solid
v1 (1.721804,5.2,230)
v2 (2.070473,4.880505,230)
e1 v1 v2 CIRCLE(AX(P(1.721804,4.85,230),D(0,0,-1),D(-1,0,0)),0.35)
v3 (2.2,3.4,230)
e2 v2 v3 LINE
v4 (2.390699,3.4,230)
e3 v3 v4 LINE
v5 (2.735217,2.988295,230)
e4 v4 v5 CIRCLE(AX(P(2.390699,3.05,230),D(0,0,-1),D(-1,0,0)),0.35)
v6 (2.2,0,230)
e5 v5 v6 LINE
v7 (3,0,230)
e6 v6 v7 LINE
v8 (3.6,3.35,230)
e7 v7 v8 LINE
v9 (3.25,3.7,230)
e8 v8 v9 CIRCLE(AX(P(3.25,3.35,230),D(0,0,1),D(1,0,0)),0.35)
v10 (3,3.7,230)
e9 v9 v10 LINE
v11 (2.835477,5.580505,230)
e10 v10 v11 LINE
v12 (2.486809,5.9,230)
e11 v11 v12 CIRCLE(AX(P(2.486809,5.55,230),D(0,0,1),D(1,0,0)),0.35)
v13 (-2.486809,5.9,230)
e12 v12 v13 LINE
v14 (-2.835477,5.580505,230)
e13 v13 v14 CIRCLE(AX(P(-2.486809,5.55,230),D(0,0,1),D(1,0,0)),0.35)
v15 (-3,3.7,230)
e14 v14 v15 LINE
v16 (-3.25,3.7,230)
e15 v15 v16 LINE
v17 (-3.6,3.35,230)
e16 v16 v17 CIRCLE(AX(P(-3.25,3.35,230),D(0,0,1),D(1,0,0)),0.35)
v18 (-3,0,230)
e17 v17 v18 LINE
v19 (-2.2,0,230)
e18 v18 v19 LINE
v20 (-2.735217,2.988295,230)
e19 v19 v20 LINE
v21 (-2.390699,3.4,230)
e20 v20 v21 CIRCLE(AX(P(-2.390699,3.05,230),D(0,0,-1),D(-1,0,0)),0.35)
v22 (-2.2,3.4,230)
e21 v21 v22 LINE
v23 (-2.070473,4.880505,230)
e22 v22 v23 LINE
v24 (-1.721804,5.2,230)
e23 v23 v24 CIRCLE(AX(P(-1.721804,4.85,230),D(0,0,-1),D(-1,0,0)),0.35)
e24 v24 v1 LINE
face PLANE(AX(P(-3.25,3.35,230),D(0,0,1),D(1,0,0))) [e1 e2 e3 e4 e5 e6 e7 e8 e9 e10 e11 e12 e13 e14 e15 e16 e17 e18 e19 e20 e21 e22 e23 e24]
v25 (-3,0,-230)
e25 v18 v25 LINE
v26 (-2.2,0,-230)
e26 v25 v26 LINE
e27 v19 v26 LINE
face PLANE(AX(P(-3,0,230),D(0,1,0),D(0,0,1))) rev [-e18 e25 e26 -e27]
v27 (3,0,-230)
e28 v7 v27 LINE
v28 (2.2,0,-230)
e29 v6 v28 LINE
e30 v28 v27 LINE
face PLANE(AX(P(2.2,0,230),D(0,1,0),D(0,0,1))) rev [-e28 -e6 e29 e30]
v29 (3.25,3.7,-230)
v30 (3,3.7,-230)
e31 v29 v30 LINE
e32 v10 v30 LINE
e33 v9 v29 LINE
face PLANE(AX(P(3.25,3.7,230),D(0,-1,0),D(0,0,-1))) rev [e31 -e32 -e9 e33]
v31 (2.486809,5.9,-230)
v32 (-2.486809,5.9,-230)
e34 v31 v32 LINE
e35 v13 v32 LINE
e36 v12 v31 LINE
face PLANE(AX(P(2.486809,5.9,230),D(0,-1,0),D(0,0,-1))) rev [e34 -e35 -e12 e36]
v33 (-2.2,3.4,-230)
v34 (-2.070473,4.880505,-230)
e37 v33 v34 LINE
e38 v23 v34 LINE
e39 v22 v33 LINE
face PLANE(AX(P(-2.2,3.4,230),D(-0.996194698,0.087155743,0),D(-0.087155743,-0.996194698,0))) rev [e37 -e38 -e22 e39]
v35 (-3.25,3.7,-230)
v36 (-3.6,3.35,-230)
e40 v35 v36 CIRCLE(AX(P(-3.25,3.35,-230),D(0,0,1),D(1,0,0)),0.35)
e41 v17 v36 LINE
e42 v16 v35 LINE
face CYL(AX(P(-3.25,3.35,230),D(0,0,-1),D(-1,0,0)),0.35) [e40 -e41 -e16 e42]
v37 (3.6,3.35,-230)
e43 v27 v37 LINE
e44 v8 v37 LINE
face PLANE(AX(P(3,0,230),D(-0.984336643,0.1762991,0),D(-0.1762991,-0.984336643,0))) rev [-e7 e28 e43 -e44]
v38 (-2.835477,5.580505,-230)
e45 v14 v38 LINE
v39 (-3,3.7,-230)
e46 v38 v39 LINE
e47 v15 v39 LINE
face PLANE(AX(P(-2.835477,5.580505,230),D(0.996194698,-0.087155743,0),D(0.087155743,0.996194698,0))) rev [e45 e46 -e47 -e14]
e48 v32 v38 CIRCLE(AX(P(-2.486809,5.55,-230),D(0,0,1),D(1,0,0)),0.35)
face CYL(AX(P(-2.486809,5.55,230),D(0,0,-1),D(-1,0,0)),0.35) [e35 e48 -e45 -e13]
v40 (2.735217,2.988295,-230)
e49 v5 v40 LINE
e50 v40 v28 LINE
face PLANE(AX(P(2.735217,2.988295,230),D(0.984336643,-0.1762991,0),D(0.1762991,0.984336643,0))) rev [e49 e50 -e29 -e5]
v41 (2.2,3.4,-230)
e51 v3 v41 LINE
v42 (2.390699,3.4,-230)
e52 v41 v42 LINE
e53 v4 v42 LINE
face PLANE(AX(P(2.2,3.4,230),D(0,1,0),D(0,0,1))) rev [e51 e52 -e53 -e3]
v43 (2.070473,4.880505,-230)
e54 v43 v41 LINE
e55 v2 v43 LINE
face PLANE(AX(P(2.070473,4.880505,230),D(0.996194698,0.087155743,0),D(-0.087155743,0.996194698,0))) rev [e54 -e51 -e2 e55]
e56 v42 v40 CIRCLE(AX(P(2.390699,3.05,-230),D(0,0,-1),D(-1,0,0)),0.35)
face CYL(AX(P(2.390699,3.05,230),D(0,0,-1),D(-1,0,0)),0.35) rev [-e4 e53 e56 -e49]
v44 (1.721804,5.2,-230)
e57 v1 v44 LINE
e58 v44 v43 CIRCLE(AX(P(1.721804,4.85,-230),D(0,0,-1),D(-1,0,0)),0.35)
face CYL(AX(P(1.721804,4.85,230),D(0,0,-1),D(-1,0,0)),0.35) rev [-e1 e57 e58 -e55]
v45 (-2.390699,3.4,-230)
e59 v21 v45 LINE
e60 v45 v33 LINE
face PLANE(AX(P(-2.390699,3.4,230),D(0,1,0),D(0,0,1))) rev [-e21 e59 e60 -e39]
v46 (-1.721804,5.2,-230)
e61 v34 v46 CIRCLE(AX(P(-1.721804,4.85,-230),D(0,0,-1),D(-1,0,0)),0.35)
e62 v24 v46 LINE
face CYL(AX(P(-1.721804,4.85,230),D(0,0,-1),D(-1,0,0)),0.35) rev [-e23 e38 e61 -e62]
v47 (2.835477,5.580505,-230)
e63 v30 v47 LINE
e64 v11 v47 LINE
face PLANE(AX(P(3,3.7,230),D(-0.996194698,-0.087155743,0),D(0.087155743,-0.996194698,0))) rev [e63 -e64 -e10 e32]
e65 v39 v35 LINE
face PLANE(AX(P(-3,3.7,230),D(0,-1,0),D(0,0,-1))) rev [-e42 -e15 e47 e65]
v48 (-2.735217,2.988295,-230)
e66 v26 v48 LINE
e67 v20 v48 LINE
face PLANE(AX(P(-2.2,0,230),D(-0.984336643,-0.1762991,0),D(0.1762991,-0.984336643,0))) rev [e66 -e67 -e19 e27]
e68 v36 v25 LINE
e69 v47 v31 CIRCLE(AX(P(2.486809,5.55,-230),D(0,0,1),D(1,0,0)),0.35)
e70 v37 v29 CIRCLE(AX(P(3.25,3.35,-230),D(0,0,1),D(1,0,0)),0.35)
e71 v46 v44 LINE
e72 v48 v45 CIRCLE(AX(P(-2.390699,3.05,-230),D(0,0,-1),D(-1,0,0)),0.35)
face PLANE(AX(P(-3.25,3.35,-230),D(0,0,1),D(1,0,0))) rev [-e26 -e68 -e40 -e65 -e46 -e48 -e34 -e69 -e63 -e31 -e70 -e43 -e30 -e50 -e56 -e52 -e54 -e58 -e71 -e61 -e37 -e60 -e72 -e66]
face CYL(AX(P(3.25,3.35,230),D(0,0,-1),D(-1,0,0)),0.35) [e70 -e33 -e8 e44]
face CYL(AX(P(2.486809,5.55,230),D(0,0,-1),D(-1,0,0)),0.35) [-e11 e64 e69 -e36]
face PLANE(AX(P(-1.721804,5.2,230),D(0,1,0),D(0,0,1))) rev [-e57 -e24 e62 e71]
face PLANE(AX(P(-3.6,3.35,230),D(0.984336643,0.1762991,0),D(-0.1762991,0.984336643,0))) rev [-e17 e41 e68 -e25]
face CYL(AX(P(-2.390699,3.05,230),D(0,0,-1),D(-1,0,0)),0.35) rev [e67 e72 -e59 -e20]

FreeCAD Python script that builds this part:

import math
import FreeCAD as App
import Part
import Sketcher
from FreeCAD import Vector
Q = App.Units.Quantity

doc = App.newDocument("Part")
params = doc.addObject("Spreadsheet::Sheet", "Params")
for row, (alias, value) in enumerate([
    ("sketch1_radius", "0.35 mm"),
    ("sketch1_width", "0.8 mm"),
    ("sketch1_width2", "0.25 mm"),
    ("pad1_length", "460 mm"),
], start=1):
    params.set(f"A{row}", alias)
    params.set(f"B{row}", "=" + value)
    params.setAlias(f"B{row}", alias)

body = doc.addObject("PartDesign::Body", "Body")

sketch1 = doc.addObject("Sketcher::SketchObject", "Sketch")
body.addObject(sketch1)
sketch1.AttachmentSupport = (doc.XY_Plane, [""])
sketch1.MapMode = "FlatFace"
sketch1.addGeometry(Part.LineSegment(Vector(-3.6, 3.35, 0), Vector(-3, 0, 0)), False)
sketch1.addGeometry(Part.LineSegment(Vector(-3, 0, 0), Vector(-2.2, 0, 0)), False)
sketch1.addGeometry(Part.LineSegment(Vector(-2.2, 0, 0), Vector(-2.74, 2.99, 0)), False)
sketch1.addGeometry(Part.ArcOfCircle(Part.Circle(Vector(-2.39, 3.05, 0), Vector(0, 0, 1), 0.35), math.radians(90), math.radians(190)), False)
sketch1.addGeometry(Part.LineSegment(Vector(-2.39, 3.4, 0), Vector(-2.2, 3.4, 0)), False)
sketch1.addGeometry(Part.LineSegment(Vector(-2.2, 3.4, 0), Vector(-2.07, 4.88, 0)), False)
sketch1.addGeometry(Part.ArcOfCircle(Part.Circle(Vector(-1.72, 4.85, 0), Vector(0, 0, 1), 0.35), math.radians(90), math.radians(175)), False)
sketch1.addGeometry(Part.LineSegment(Vector(-1.72, 5.2, 0), Vector(1.72, 5.2, 0)), False)
sketch1.addGeometry(Part.ArcOfCircle(Part.Circle(Vector(1.72, 4.85, 0), Vector(0, 0, 1), 0.35), math.radians(5), math.radians(90)), False)
sketch1.addGeometry(Part.LineSegment(Vector(2.07, 4.88, 0), Vector(2.2, 3.4, 0)), False)
sketch1.addGeometry(Part.LineSegment(Vector(2.2, 3.4, 0), Vector(2.39, 3.4, 0)), False)
sketch1.addGeometry(Part.ArcOfCircle(Part.Circle(Vector(2.39, 3.05, 0), Vector(0, 0, 1), 0.35), math.radians(-10), math.radians(90)), False)
sketch1.addGeometry(Part.LineSegment(Vector(2.74, 2.99, 0), Vector(2.2, 0, 0)), False)
sketch1.addGeometry(Part.LineSegment(Vector(2.2, 0, 0), Vector(3, 0, 0)), False)
sketch1.addGeometry(Part.LineSegment(Vector(3, 0, 0), Vector(3.6, 3.35, 0)), False)
sketch1.addGeometry(Part.ArcOfCircle(Part.Circle(Vector(3.25, 3.35, 0), Vector(0, 0, 1), 0.35), math.radians(0), math.radians(90)), False)
sketch1.addGeometry(Part.LineSegment(Vector(3.25, 3.7, 0), Vector(3, 3.7, 0)), False)
sketch1.addGeometry(Part.LineSegment(Vector(3, 3.7, 0), Vector(2.84, 5.58, 0)), False)
sketch1.addGeometry(Part.ArcOfCircle(Part.Circle(Vector(2.49, 5.55, 0), Vector(0, 0, 1), 0.35), math.radians(5), math.radians(90)), False)
sketch1.addGeometry(Part.LineSegment(Vector(2.49, 5.9, 0), Vector(-2.49, 5.9, 0)), False)
sketch1.addGeometry(Part.ArcOfCircle(Part.Circle(Vector(-2.49, 5.55, 0), Vector(0, 0, 1), 0.35), math.radians(90), math.radians(175)), False)
sketch1.addGeometry(Part.LineSegment(Vector(-2.84, 5.58, 0), Vector(-3, 3.7, 0)), False)
sketch1.addGeometry(Part.LineSegment(Vector(-3, 3.7, 0), Vector(-3.25, 3.7, 0)), False)
sketch1.addGeometry(Part.ArcOfCircle(Part.Circle(Vector(-3.25, 3.35, 0), Vector(0, 0, 1), 0.35), math.radians(90), math.radians(180)), False)
sketch1.addConstraint(Sketcher.Constraint("Coincident", 0, 2, 1, 1))
sketch1.addConstraint(Sketcher.Constraint("Coincident", 1, 2, 2, 1))
sketch1.addConstraint(Sketcher.Constraint("Tangent", 2, 2, 3, 2))
sketch1.addConstraint(Sketcher.Constraint("Tangent", 3, 1, 4, 1))
sketch1.addConstraint(Sketcher.Constraint("Coincident", 4, 2, 5, 1))
sketch1.addConstraint(Sketcher.Constraint("Tangent", 5, 2, 6, 2))
sketch1.addConstraint(Sketcher.Constraint("Tangent", 6, 1, 7, 1))
sketch1.addConstraint(Sketcher.Constraint("Tangent", 7, 2, 8, 2))
sketch1.addConstraint(Sketcher.Constraint("Tangent", 8, 1, 9, 1))
sketch1.addConstraint(Sketcher.Constraint("Coincident", 9, 2, 10, 1))
sketch1.addConstraint(Sketcher.Constraint("Tangent", 10, 2, 11, 2))
sketch1.addConstraint(Sketcher.Constraint("Tangent", 11, 1, 12, 1))
sketch1.addConstraint(Sketcher.Constraint("Coincident", 12, 2, 13, 1))
sketch1.addConstraint(Sketcher.Constraint("Coincident", 13, 2, 14, 1))
sketch1.addConstraint(Sketcher.Constraint("Coincident", 14, 2, 15, 1))
sketch1.addConstraint(Sketcher.Constraint("Tangent", 15, 2, 16, 1))
sketch1.addConstraint(Sketcher.Constraint("Coincident", 16, 2, 17, 1))
sketch1.addConstraint(Sketcher.Constraint("Tangent", 17, 2, 18, 1))
sketch1.addConstraint(Sketcher.Constraint("Tangent", 18, 2, 19, 1))
sketch1.addConstraint(Sketcher.Constraint("Tangent", 19, 2, 20, 1))
sketch1.addConstraint(Sketcher.Constraint("Tangent", 20, 2, 21, 1))
sketch1.addConstraint(Sketcher.Constraint("Coincident", 21, 2, 22, 1))
sketch1.addConstraint(Sketcher.Constraint("Tangent", 22, 2, 23, 1))
sketch1.addConstraint(Sketcher.Constraint("Coincident", 23, 2, 0, 1))
sketch1.addConstraint(Sketcher.Constraint("Horizontal", 1))
sketch1.addConstraint(Sketcher.Constraint("Horizontal", 4))
sketch1.addConstraint(Sketcher.Constraint("Horizontal", 7))
sketch1.addConstraint(Sketcher.Constraint("Horizontal", 10))
sketch1.addConstraint(Sketcher.Constraint("Horizontal", 13))
sketch1.addConstraint(Sketcher.Constraint("Horizontal", 16))
sketch1.addConstraint(Sketcher.Constraint("Horizontal", 19))
sketch1.addConstraint(Sketcher.Constraint("Horizontal", 22))
sketch1.addConstraint(Sketcher.Constraint("Equal", 3, 6))
sketch1.addConstraint(Sketcher.Constraint("Equal", 6, 8))
sketch1.addConstraint(Sketcher.Constraint("Equal", 8, 11))
sketch1.addConstraint(Sketcher.Constraint("Equal", 11, 15))
sketch1.addConstraint(Sketcher.Constraint("Equal", 15, 18))
sketch1.addConstraint(Sketcher.Constraint("Equal", 18, 20))
sketch1.addConstraint(Sketcher.Constraint("Equal", 20, 23))
sketch1.addConstraint(Sketcher.Constraint("Symmetric", 1, 2, 12, 2, -1, 1))
sketch1.addConstraint(Sketcher.Constraint("Symmetric", 3, 3, 11, 3, -2))
sketch1.addConstraint(Sketcher.Constraint("Symmetric", 15, 3, 23, 3, -2))
sketch1.addConstraint(Sketcher.Constraint("Symmetric", 5, 2, 8, 1, -2))
sketch1.addConstraint(Sketcher.Constraint("Symmetric", 0, 2, 13, 2, -2))
sketch1.addConstraint(Sketcher.Constraint("Symmetric", 17, 2, 20, 2, -2))
sketch1.addConstraint(Sketcher.Constraint("Parallel", 0, 2))
sketch1.addConstraint(Sketcher.Constraint("Parallel", 12, 14))
sketch1.addConstraint(Sketcher.Constraint("Parallel", 9, 17))
sketch1.addConstraint(Sketcher.Constraint("Horizontal", 23, 3, 14, 2))
sketch1.addConstraint(Sketcher.Constraint("Vertical", 1, 2, 4, 2))
sketch1.addConstraint(Sketcher.Constraint("Vertical", 13, 2, 16, 2))
sketch1.addConstraint(Sketcher.Constraint("Angle", 5, Q("85 deg")))
sketch1.addConstraint(Sketcher.Constraint("Radius", 3, Q("0.35 mm")))
sketch1.addConstraint(Sketcher.Constraint("DistanceX", 1, 1, 1, 2, Q("0.8 mm")))
sketch1.addConstraint(Sketcher.Constraint("DistanceX", 0, 2, -1, 1, Q("3 mm")))
sketch1.addConstraint(Sketcher.Constraint("DistanceX", 16, 2, 16, 1, Q("0.25 mm")))
sketch1.addConstraint(Sketcher.Constraint("DistanceY", -1, 1, 3, 1, Q("3.4 mm")))
sketch1.addConstraint(Sketcher.Constraint("DistanceY", -1, 1, 6, 1, Q("5.2 mm")))
sketch1.addConstraint(Sketcher.Constraint("DistanceY", -1, 1, 15, 2, Q("3.7 mm")))
sketch1.addConstraint(Sketcher.Constraint("DistanceY", -1, 1, 18, 2, Q("5.9 mm")))
sketch1.setExpression("Constraints[52]", "Params.sketch1_radius")
sketch1.setExpression("Constraints[53]", "Params.sketch1_width")
sketch1.setExpression("Constraints[55]", "Params.sketch1_width2")
pad1 = doc.addObject("PartDesign::Pad", "Pad")
body.addObject(pad1)
pad1.Profile = sketch1
pad1.setExpression("Length", "Params.pad1_length")
pad1.Midplane = True

doc.recompute()
